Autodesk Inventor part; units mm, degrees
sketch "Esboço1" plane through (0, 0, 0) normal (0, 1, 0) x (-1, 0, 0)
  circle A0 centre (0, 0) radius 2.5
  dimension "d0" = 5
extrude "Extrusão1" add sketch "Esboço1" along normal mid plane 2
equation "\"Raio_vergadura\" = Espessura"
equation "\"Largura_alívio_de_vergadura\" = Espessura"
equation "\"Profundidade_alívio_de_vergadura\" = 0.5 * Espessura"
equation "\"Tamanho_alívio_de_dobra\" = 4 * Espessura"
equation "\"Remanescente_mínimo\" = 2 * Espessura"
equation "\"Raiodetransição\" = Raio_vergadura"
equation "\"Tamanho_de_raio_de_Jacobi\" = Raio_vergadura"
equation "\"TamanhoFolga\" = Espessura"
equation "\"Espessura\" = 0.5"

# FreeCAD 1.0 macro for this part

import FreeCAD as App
import Part
import Sketcher

V = App.Vector

doc = App.newDocument("Part")
body = doc.addObject("PartDesign::Body", "Body")

# Sketch on XZ plane
sketch1 = body.newObject("Sketcher::SketchObject", "Sketch")
sketch1.AttachmentSupport = (doc.getObject("XZ_Plane"), [""])
sketch1.MapMode = "FlatFace"
sketch1.addGeometry(Part.Circle(V(0, 0, 0), V(0, 0, 1), 2.5), False)
sketch1.addConstraint(Sketcher.Constraint("Coincident", 0, 3, -1, 1))
sketch1.addConstraint(Sketcher.Constraint("Diameter", 0, 5.0))
pad1 = body.newObject("PartDesign::Pad", "Pad")
pad1.Profile = sketch1
pad1.Length = 2
pad1.Midplane = True

doc.recompute()
